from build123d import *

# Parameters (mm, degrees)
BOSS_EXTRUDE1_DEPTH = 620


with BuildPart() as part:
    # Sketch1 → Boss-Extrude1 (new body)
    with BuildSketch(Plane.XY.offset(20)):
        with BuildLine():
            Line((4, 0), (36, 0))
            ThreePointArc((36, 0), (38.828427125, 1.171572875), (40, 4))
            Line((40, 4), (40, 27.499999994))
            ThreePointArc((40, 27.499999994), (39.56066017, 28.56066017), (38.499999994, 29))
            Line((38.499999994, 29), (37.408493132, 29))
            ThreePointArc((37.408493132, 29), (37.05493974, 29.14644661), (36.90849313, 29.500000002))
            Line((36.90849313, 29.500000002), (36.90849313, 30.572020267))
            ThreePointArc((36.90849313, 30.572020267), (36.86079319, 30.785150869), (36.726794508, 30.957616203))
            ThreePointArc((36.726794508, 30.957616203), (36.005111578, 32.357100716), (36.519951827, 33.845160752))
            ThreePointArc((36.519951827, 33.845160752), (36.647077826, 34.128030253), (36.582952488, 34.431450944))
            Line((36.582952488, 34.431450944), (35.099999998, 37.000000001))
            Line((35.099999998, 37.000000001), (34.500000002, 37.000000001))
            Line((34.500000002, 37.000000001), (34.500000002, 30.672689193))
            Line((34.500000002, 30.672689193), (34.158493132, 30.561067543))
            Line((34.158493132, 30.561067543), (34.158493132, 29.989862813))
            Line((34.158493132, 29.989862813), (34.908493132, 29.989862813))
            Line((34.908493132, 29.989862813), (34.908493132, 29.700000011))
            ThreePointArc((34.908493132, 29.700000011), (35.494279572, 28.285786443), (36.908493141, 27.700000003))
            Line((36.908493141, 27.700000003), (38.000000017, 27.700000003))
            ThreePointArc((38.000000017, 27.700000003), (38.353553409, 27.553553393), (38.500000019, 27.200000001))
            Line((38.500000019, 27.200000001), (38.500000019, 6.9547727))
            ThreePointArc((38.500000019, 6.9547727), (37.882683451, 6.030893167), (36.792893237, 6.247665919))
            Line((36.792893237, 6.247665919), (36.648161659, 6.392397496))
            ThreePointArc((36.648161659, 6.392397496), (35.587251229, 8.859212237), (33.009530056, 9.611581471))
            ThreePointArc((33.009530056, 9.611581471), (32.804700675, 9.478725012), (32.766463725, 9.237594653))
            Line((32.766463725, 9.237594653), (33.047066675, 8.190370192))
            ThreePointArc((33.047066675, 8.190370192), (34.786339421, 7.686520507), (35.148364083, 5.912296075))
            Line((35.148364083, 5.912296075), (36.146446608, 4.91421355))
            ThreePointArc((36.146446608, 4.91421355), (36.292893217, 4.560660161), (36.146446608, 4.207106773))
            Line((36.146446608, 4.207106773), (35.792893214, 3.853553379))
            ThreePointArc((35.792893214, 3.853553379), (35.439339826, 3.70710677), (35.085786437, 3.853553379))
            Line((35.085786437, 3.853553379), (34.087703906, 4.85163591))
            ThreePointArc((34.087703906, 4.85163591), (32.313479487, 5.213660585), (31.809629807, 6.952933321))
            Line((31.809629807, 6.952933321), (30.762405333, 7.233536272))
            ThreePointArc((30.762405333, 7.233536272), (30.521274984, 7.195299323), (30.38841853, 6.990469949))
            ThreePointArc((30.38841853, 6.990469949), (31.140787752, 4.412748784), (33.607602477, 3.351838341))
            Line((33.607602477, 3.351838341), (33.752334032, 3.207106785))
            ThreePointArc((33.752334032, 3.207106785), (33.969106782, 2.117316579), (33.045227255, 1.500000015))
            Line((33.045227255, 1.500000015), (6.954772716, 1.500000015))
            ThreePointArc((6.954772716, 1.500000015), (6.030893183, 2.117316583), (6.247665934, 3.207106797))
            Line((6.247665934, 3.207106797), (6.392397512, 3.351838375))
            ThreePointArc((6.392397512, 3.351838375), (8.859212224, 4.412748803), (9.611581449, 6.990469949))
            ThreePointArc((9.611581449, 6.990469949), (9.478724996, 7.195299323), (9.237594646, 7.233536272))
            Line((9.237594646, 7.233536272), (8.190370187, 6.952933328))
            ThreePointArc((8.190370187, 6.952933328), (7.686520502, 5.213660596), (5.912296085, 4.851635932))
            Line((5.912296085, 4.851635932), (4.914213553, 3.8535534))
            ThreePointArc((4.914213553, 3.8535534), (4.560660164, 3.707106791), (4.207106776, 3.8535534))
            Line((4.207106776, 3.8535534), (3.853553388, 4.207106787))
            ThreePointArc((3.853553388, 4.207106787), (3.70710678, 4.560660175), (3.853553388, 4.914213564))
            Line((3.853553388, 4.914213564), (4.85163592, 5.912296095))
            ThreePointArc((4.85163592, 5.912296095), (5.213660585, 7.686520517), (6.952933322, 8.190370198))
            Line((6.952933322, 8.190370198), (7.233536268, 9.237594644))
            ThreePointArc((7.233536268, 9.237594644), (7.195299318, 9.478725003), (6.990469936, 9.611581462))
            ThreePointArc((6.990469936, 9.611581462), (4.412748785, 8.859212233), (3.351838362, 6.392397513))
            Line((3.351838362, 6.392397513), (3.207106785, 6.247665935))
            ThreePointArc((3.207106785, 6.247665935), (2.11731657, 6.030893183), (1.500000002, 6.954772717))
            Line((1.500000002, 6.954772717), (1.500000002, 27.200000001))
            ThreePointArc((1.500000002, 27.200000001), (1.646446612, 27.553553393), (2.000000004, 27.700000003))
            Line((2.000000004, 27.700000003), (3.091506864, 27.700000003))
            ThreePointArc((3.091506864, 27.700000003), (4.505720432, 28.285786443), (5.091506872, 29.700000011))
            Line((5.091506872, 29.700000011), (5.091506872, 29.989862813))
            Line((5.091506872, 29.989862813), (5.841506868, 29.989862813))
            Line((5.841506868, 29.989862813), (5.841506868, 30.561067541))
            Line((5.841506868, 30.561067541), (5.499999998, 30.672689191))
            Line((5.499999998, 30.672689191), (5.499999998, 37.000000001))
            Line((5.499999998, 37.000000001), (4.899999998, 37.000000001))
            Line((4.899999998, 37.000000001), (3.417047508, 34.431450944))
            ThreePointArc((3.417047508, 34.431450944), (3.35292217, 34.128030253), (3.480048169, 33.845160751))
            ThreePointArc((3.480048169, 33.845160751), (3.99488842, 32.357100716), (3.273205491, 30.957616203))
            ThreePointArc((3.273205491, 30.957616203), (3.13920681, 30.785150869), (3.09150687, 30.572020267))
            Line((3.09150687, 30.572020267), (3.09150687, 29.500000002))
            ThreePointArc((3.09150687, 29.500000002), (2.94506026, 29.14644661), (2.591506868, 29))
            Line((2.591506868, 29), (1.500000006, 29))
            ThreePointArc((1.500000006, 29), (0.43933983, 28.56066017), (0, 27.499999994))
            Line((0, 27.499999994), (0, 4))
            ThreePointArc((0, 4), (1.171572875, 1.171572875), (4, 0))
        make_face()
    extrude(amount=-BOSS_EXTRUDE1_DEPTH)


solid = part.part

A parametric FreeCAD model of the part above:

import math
import FreeCAD as App
import Part
import Sketcher

V = App.Vector
Q = App.Units.Quantity

doc = App.newDocument("Part")
params = doc.addObject("Spreadsheet::Sheet", "Params")
for row, (alias, value) in enumerate([
    ("sketch1_radius", "4 mm"),
    ("sketch1_radius2", "2 mm"),
    ("sketch1_radius3", "1 mm"),
    ("sketch1_radius4", "1.5 mm"),
    ("sketch1_radius5", "0.5 mm"),
    ("pad1_length", "620 mm"),
], start=1):
    params.set(f"A{row}", alias)
    params.set(f"B{row}", "=" + value)
    params.setAlias(f"B{row}", alias)

body = doc.addObject("PartDesign::Body", "Body")

sketch1 = body.newObject("Sketcher::SketchObject", "Sketch")
sketch1.AttachmentSupport = (doc.getObject("XY_Plane"), [""])
sketch1.MapMode = "FlatFace"
sketch1.AttachmentOffset = App.Placement(V(0, 0, 20), App.Rotation())
sketch1.addGeometry(Part.LineSegment(V(4, 0, 0), V(36, 0, 0)), False)
sketch1.addGeometry(Part.ArcOfCircle(Part.Circle(V(36, 4, 0), V(0, 0, 1), 4), math.radians(-90), math.radians(0)), False)
sketch1.addGeometry(Part.LineSegment(V(40, 4, 0), V(40, 27.5, 0)), False)
sketch1.addGeometry(Part.ArcOfCircle(Part.Circle(V(38.5, 27.5, 0), V(0, 0, 1), 1.5), math.radians(0), math.radians(90)), False)
sketch1.addGeometry(Part.LineSegment(V(38.5, 29, 0), V(37.408493, 29, 0)), False)
sketch1.addGeometry(Part.ArcOfCircle(Part.Circle(V(37.408493, 29.5, 0), V(0, 0, 1), 0.5), math.radians(180), math.radians(270)), False)
sketch1.addGeometry(Part.LineSegment(V(36.908493, 29.5, 0), V(36.908493, 30.57202, 0)), False)
sketch1.addGeometry(Part.ArcOfCircle(Part.Circle(V(36.408493, 30.57202, 0), V(0, 0, 1), 0.5), math.radians(0), math.radians(50.461041)), False)
sketch1.addGeometry(Part.ArcOfCircle(Part.Circle(V(38, 32.5, 0), V(0, 0, 1), 2), math.radians(137.733467), math.radians(230.461041)), False)
sketch1.addGeometry(Part.ArcOfCircle(Part.Circle(V(36.14994, 34.181451, 0), V(0, 0, 1), 0.5), math.radians(-42.266533), math.radians(30)), False)
sketch1.addGeometry(Part.LineSegment(V(36.582952, 34.431451, 0), V(35.1, 37, 0)), False)
sketch1.addGeometry(Part.LineSegment(V(35.1, 37, 0), V(34.5, 37, 0)), False)
sketch1.addGeometry(Part.LineSegment(V(34.5, 37, 0), V(34.5, 30.672689, 0)), False)
sketch1.addGeometry(Part.LineSegment(V(34.5, 30.672689, 0), V(34.158493, 30.561068, 0)), False)
sketch1.addGeometry(Part.LineSegment(V(34.158493, 30.561068, 0), V(34.158493, 29.989863, 0)), False)
sketch1.addGeometry(Part.LineSegment(V(34.158493, 29.989863, 0), V(34.908493, 29.989863, 0)), False)
sketch1.addGeometry(Part.LineSegment(V(34.908493, 29.989863, 0), V(34.908493, 29.7, 0)), False)
sketch1.addGeometry(Part.ArcOfCircle(Part.Circle(V(36.908493, 29.7, 0), V(0, 0, 1), 2), math.radians(180), math.radians(270)), False)
sketch1.addGeometry(Part.LineSegment(V(36.908493, 27.7, 0), V(38, 27.7, 0)), False)
sketch1.addGeometry(Part.ArcOfCircle(Part.Circle(V(38, 27.2, 0), V(0, 0, 1), 0.5), math.radians(0), math.radians(90)), False)
sketch1.addGeometry(Part.LineSegment(V(38.5, 27.2, 0), V(38.5, 6.954773, 0)), False)
sketch1.addGeometry(Part.ArcOfCircle(Part.Circle(V(37.5, 6.954773, 0), V(0, 0, 1), 1), math.radians(-135), math.radians(0)), False)
sketch1.addGeometry(Part.LineSegment(V(36.792893, 6.247666, 0), V(36.648162, 6.392397, 0)), False)
sketch1.addGeometry(Part.ArcOfCircle(Part.Circle(V(33.5, 6.5, 0), V(0, 0, 1), 3.15), math.radians(-1.957577), math.radians(98.957671)), False)
sketch1.addGeometry(Part.ArcOfCircle(Part.Circle(V(33.056241, 9.31524, 0), V(0, 0, 1), 0.3), math.radians(98.957671), math.radians(195)), False)
sketch1.addGeometry(Part.LineSegment(V(32.766464, 9.237595, 0), V(33.047067, 8.19037, 0)), False)
sketch1.addGeometry(Part.ArcOfCircle(Part.Circle(V(33.5, 6.5, 0), V(0, 0, 1), 1.75), math.radians(-19.623067), math.radians(105)), False)
sketch1.addGeometry(Part.LineSegment(V(35.148364, 5.912296, 0), V(36.146447, 4.914214, 0)), False)
sketch1.addGeometry(Part.ArcOfCircle(Part.Circle(V(35.792893, 4.56066, 0), V(0, 0, 1), 0.5), math.radians(-45), math.radians(45)), False)
sketch1.addGeometry(Part.LineSegment(V(36.146447, 4.207107, 0), V(35.792893, 3.853553, 0)), False)
sketch1.addGeometry(Part.ArcOfCircle(Part.Circle(V(35.43934, 4.207107, 0), V(0, 0, 1), 0.5), math.radians(-135), math.radians(-45)), False)
sketch1.addGeometry(Part.LineSegment(V(35.085786, 3.853553, 0), V(34.087704, 4.851636, 0)), False)
sketch1.addGeometry(Part.ArcOfCircle(Part.Circle(V(33.5, 6.5, 0), V(0, 0, 1), 1.75), math.radians(165), math.radians(289.623066)), False)
sketch1.addGeometry(Part.LineSegment(V(31.80963, 6.952933, 0), V(30.762405, 7.233536, 0)), False)
sketch1.addGeometry(Part.ArcOfCircle(Part.Circle(V(30.68476, 6.943759, 0), V(0, 0, 1), 0.3), math.radians(75), math.radians(171.042329)), False)
sketch1.addGeometry(Part.ArcOfCircle(Part.Circle(V(33.5, 6.5, 0), V(0, 0, 1), 3.15), math.radians(171.042328), math.radians(271.957577)), False)
sketch1.addGeometry(Part.LineSegment(V(33.607602, 3.351838, 0), V(33.752334, 3.207107, 0)), False)
sketch1.addGeometry(Part.ArcOfCircle(Part.Circle(V(33.045227, 2.5, 0), V(0, 0, 1), 1), math.radians(-90), math.radians(45)), False)
sketch1.addGeometry(Part.LineSegment(V(33.045227, 1.5, 0), V(6.954773, 1.5, 0)), False)
sketch1.addGeometry(Part.ArcOfCircle(Part.Circle(V(6.954773, 2.5, 0), V(0, 0, 1), 1), math.radians(135), math.radians(270)), False)
sketch1.addGeometry(Part.LineSegment(V(6.247666, 3.207107, 0), V(6.392398, 3.351838, 0)), False)
sketch1.addGeometry(Part.ArcOfCircle(Part.Circle(V(6.5, 6.5, 0), V(0, 0, 1), 3.15), math.radians(-91.957577), math.radians(8.957671)), False)
sketch1.addGeometry(Part.ArcOfCircle(Part.Circle(V(9.31524, 6.943759, 0), V(0, 0, 1), 0.3), math.radians(8.957671), math.radians(105)), False)
sketch1.addGeometry(Part.LineSegment(V(9.237595, 7.233536, 0), V(8.19037, 6.952933, 0)), False)
sketch1.addGeometry(Part.ArcOfCircle(Part.Circle(V(6.5, 6.5, 0), V(0, 0, 1), 1.75), math.radians(-109.623067), math.radians(15)), False)
sketch1.addGeometry(Part.LineSegment(V(5.912296, 4.851636, 0), V(4.914214, 3.853553, 0)), False)
sketch1.addGeometry(Part.ArcOfCircle(Part.Circle(V(4.56066, 4.207107, 0), V(0, 0, 1), 0.5), math.radians(-135), math.radians(-45)), False)
sketch1.addGeometry(Part.LineSegment(V(4.207107, 3.853553, 0), V(3.853553, 4.207107, 0)), False)
sketch1.addGeometry(Part.ArcOfCircle(Part.Circle(V(4.207107, 4.56066, 0), V(0, 0, 1), 0.5), math.radians(135), math.radians(225)), False)
sketch1.addGeometry(Part.LineSegment(V(3.853553, 4.914214, 0), V(4.851636, 5.912296, 0)), False)
sketch1.addGeometry(Part.ArcOfCircle(Part.Circle(V(6.5, 6.5, 0), V(0, 0, 1), 1.75), math.radians(75), math.radians(199.623067)), False)
sketch1.addGeometry(Part.LineSegment(V(6.952933, 8.19037, 0), V(7.233536, 9.237595, 0)), False)
sketch1.addGeometry(Part.ArcOfCircle(Part.Circle(V(6.943759, 9.31524, 0), V(0, 0, 1), 0.3), math.radians(-15), math.radians(81.042329)), False)
sketch1.addGeometry(Part.ArcOfCircle(Part.Circle(V(6.5, 6.5, 0), V(0, 0, 1), 3.15), math.radians(81.042329), math.radians(181.957577)), False)
sketch1.addGeometry(Part.LineSegment(V(3.351838, 6.392398, 0), V(3.207107, 6.247666, 0)), False)
sketch1.addGeometry(Part.ArcOfCircle(Part.Circle(V(2.5, 6.954773, 0), V(0, 0, 1), 1), math.radians(180), math.radians(315)), False)
sketch1.addGeometry(Part.LineSegment(V(1.5, 6.954773, 0), V(1.5, 27.2, 0)), False)
sketch1.addGeometry(Part.ArcOfCircle(Part.Circle(V(2, 27.2, 0), V(0, 0, 1), 0.5), math.radians(90), math.radians(180)), False)
sketch1.addGeometry(Part.LineSegment(V(2, 27.7, 0), V(3.091507, 27.7, 0)), False)
sketch1.addGeometry(Part.ArcOfCircle(Part.Circle(V(3.091507, 29.7, 0), V(0, 0, 1), 2), math.radians(-90), math.radians(0)), False)
sketch1.addGeometry(Part.LineSegment(V(5.091507, 29.7, 0), V(5.091507, 29.989863, 0)), False)
sketch1.addGeometry(Part.LineSegment(V(5.091507, 29.989863, 0), V(5.841507, 29.989863, 0)), False)
sketch1.addGeometry(Part.LineSegment(V(5.841507, 29.989863, 0), V(5.841507, 30.561068, 0)), False)
sketch1.addGeometry(Part.LineSegment(V(5.841507, 30.561068, 0), V(5.5, 30.672689, 0)), False)
sketch1.addGeometry(Part.LineSegment(V(5.5, 30.672689, 0), V(5.5, 37, 0)), False)
sketch1.addGeometry(Part.LineSegment(V(5.5, 37, 0), V(4.9, 37, 0)), False)
sketch1.addGeometry(Part.LineSegment(V(4.9, 37, 0), V(3.417048, 34.431451, 0)), False)
sketch1.addGeometry(Part.ArcOfCircle(Part.Circle(V(3.85006, 34.181451, 0), V(0, 0, 1), 0.5), math.radians(150), math.radians(222.266533)), False)
sketch1.addGeometry(Part.ArcOfCircle(Part.Circle(V(2, 32.5, 0), V(0, 0, 1), 2), math.radians(-50.461041), math.radians(42.266533)), False)
sketch1.addGeometry(Part.ArcOfCircle(Part.Circle(V(3.591507, 30.57202, 0), V(0, 0, 1), 0.5), math.radians(129.538959), math.radians(180)), False)
sketch1.addGeometry(Part.LineSegment(V(3.091507, 30.57202, 0), V(3.091507, 29.5, 0)), False)
sketch1.addGeometry(Part.ArcOfCircle(Part.Circle(V(2.591507, 29.5, 0), V(0, 0, 1), 0.5), math.radians(-90), math.radians(0)), False)
sketch1.addGeometry(Part.LineSegment(V(2.591507, 29, 0), V(1.5, 29, 0)), False)
sketch1.addGeometry(Part.ArcOfCircle(Part.Circle(V(1.5, 27.5, 0), V(0, 0, 1), 1.5), math.radians(90), math.radians(180)), False)
sketch1.addGeometry(Part.LineSegment(V(0, 27.5, 0), V(0, 4, 0)), False)
sketch1.addGeometry(Part.ArcOfCircle(Part.Circle(V(4, 4, 0), V(0, 0, 1), 4), math.radians(180), math.radians(270)), False)
sketch1.addConstraint(Sketcher.Constraint("Tangent", 0, 2, 1, 1))
sketch1.addConstraint(Sketcher.Constraint("Tangent", 1, 2, 2, 1))
sketch1.addConstraint(Sketcher.Constraint("Tangent", 2, 2, 3, 1))
sketch1.addConstraint(Sketcher.Constraint("Tangent", 3, 2, 4, 1))
sketch1.addConstraint(Sketcher.Constraint("Tangent", 4, 2, 5, 2))
sketch1.addConstraint(Sketcher.Constraint("Tangent", 5, 1, 6, 1))
sketch1.addConstraint(Sketcher.Constraint("Tangent", 6, 2, 7, 1))
sketch1.addConstraint(Sketcher.Constraint("Tangent", 7, 2, 8, 2))
sketch1.addConstraint(Sketcher.Constraint("Tangent", 8, 1, 9, 1))
sketch1.addConstraint(Sketcher.Constraint("Tangent", 9, 2, 10, 1))
sketch1.addConstraint(Sketcher.Constraint("Coincident", 10, 2, 11, 1))
sketch1.addConstraint(Sketcher.Constraint("Coincident", 11, 2, 12, 1))
sketch1.addConstraint(Sketcher.Constraint("Coincident", 12, 2, 13, 1))
sketch1.addConstraint(Sketcher.Constraint("Coincident", 13, 2, 14, 1))
sketch1.addConstraint(Sketcher.Constraint("Coincident", 14, 2, 15, 1))
sketch1.addConstraint(Sketcher.Constraint("Coincident", 15, 2, 16, 1))
sketch1.addConstraint(Sketcher.Constraint("Tangent", 16, 2, 17, 1))
sketch1.addConstraint(Sketcher.Constraint("Tangent", 17, 2, 18, 1))
sketch1.addConstraint(Sketcher.Constraint("Tangent", 18, 2, 19, 2))
sketch1.addConstraint(Sketcher.Constraint("Tangent", 19, 1, 20, 1))
sketch1.addConstraint(Sketcher.Constraint("Tangent", 20, 2, 21, 2))
sketch1.addConstraint(Sketcher.Constraint("Tangent", 21, 1, 22, 1))
sketch1.addConstraint(Sketcher.Constraint("Coincident", 22, 2, 23, 1))
sketch1.addConstraint(Sketcher.Constraint("Tangent", 23, 2, 24, 1))
sketch1.addConstraint(Sketcher.Constraint("Tangent", 24, 2, 25, 1))
sketch1.addConstraint(Sketcher.Constraint("Coincident", 25, 2, 26, 2))
sketch1.addConstraint(Sketcher.Constraint("Coincident", 26, 1, 27, 1))
sketch1.addConstraint(Sketcher.Constraint("Tangent", 27, 2, 28, 2))
sketch1.addConstraint(Sketcher.Constraint("Tangent", 28, 1, 29, 1))
sketch1.addConstraint(Sketcher.Constraint("Tangent", 29, 2, 30, 2))
sketch1.addConstraint(Sketcher.Constraint("Tangent", 30, 1, 31, 1))
sketch1.addConstraint(Sketcher.Constraint("Coincident", 31, 2, 32, 2))
sketch1.addConstraint(Sketcher.Constraint("Coincident", 32, 1, 33, 1))
sketch1.addConstraint(Sketcher.Constraint("Tangent", 33, 2, 34, 1))
sketch1.addConstraint(Sketcher.Constraint("Tangent", 34, 2, 35, 1))
sketch1.addConstraint(Sketcher.Constraint("Coincident", 35, 2, 36, 1))
sketch1.addConstraint(Sketcher.Constraint("Tangent", 36, 2, 37, 2))
sketch1.addConstraint(Sketcher.Constraint("Tangent", 37, 1, 38, 1))
sketch1.addConstraint(Sketcher.Constraint("Tangent", 38, 2, 39, 2))
sketch1.addConstraint(Sketcher.Constraint("Tangent", 39, 1, 40, 1))
sketch1.addConstraint(Sketcher.Constraint("Coincident", 40, 2, 41, 1))
sketch1.addConstraint(Sketcher.Constraint("Tangent", 41, 2, 42, 1))
sketch1.addConstraint(Sketcher.Constraint("Tangent", 42, 2, 43, 1))
sketch1.addConstraint(Sketcher.Constraint("Coincident", 43, 2, 44, 2))
sketch1.addConstraint(Sketcher.Constraint("Coincident", 44, 1, 45, 1))
sketch1.addConstraint(Sketcher.Constraint("Tangent", 45, 2, 46, 2))
sketch1.addConstraint(Sketcher.Constraint("Tangent", 46, 1, 47, 1))
sketch1.addConstraint(Sketcher.Constraint("Tangent", 47, 2, 48, 2))
sketch1.addConstraint(Sketcher.Constraint("Tangent", 48, 1, 49, 1))
sketch1.addConstraint(Sketcher.Constraint("Coincident", 49, 2, 50, 2))
sketch1.addConstraint(Sketcher.Constraint("Coincident", 50, 1, 51, 1))
sketch1.addConstraint(Sketcher.Constraint("Tangent", 51, 2, 52, 1))
sketch1.addConstraint(Sketcher.Constraint("Tangent", 52, 2, 53, 1))
sketch1.addConstraint(Sketcher.Constraint("Coincident", 53, 2, 54, 1))
sketch1.addConstraint(Sketcher.Constraint("Tangent", 54, 2, 55, 2))
sketch1.addConstraint(Sketcher.Constraint("Tangent", 55, 1, 56, 1))
sketch1.addConstraint(Sketcher.Constraint("Tangent", 56, 2, 57, 2))
sketch1.addConstraint(Sketcher.Constraint("Tangent", 57, 1, 58, 1))
sketch1.addConstraint(Sketcher.Constraint("Tangent", 58, 2, 59, 1))
sketch1.addConstraint(Sketcher.Constraint("Tangent", 59, 2, 60, 1))
sketch1.addConstraint(Sketcher.Constraint("Coincident", 60, 2, 61, 1))
sketch1.addConstraint(Sketcher.Constraint("Coincident", 61, 2, 62, 1))
sketch1.addConstraint(Sketcher.Constraint("Coincident", 62, 2, 63, 1))
sketch1.addConstraint(Sketcher.Constraint("Coincident", 63, 2, 64, 1))
sketch1.addConstraint(Sketcher.Constraint("Coincident", 64, 2, 65, 1))
sketch1.addConstraint(Sketcher.Constraint("Coincident", 65, 2, 66, 1))
sketch1.addConstraint(Sketcher.Constraint("Tangent", 66, 2, 67, 1))
sketch1.addConstraint(Sketcher.Constraint("Tangent", 67, 2, 68, 2))
sketch1.addConstraint(Sketcher.Constraint("Tangent", 68, 1, 69, 1))
sketch1.addConstraint(Sketcher.Constraint("Tangent", 69, 2, 70, 1))
sketch1.addConstraint(Sketcher.Constraint("Tangent", 70, 2, 71, 2))
sketch1.addConstraint(Sketcher.Constraint("Tangent", 71, 1, 72, 1))
sketch1.addConstraint(Sketcher.Constraint("Tangent", 72, 2, 73, 1))
sketch1.addConstraint(Sketcher.Constraint("Tangent", 73, 2, 74, 1))
sketch1.addConstraint(Sketcher.Constraint("Tangent", 74, 2, 75, 1))
sketch1.addConstraint(Sketcher.Constraint("Tangent", 75, 2, 0, 1))
sketch1.addConstraint(Sketcher.Constraint("Horizontal", 0))
sketch1.addConstraint(Sketcher.Constraint("Vertical", 2))
sketch1.addConstraint(Sketcher.Constraint("Horizontal", 4))
sketch1.addConstraint(Sketcher.Constraint("Vertical", 6))
sketch1.addConstraint(Sketcher.Constraint("Horizontal", 11))
sketch1.addConstraint(Sketcher.Constraint("Vertical", 12))
sketch1.addConstraint(Sketcher.Constraint("Vertical", 14))
sketch1.addConstraint(Sketcher.Constraint("Horizontal", 15))
sketch1.addConstraint(Sketcher.Constraint("Vertical", 16))
sketch1.addConstraint(Sketcher.Constraint("Horizontal", 18))
sketch1.addConstraint(Sketcher.Constraint("Vertical", 20))
sketch1.addConstraint(Sketcher.Constraint("Horizontal", 38))
sketch1.addConstraint(Sketcher.Constraint("Vertical", 56))
sketch1.addConstraint(Sketcher.Constraint("Horizontal", 58))
sketch1.addConstraint(Sketcher.Constraint("Vertical", 60))
sketch1.addConstraint(Sketcher.Constraint("Horizontal", 61))
sketch1.addConstraint(Sketcher.Constraint("Vertical", 62))
sketch1.addConstraint(Sketcher.Constraint("Vertical", 64))
sketch1.addConstraint(Sketcher.Constraint("Horizontal", 65))
sketch1.addConstraint(Sketcher.Constraint("Vertical", 70))
sketch1.addConstraint(Sketcher.Constraint("Horizontal", 72))
sketch1.addConstraint(Sketcher.Constraint("Vertical", 74))
sketch1.addConstraint(Sketcher.Constraint("Coincident", 26, 3, 23, 3))
sketch1.addConstraint(Sketcher.Constraint("Coincident", 32, 3, 23, 3))
sketch1.addConstraint(Sketcher.Constraint("Coincident", 35, 3, 23, 3))
sketch1.addConstraint(Sketcher.Constraint("Coincident", 44, 3, 41, 3))
sketch1.addConstraint(Sketcher.Constraint("Coincident", 50, 3, 41, 3))
sketch1.addConstraint(Sketcher.Constraint("Coincident", 53, 3, 41, 3))
sketch1.addConstraint(Sketcher.Constraint("Equal", 5, 7))
sketch1.addConstraint(Sketcher.Constraint("Equal", 7, 9))
sketch1.addConstraint(Sketcher.Constraint("Equal", 8, 17))
sketch1.addConstraint(Sketcher.Constraint("Equal", 9, 19))
sketch1.addConstraint(Sketcher.Constraint("Equal", 19, 28))
sketch1.addConstraint(Sketcher.Constraint("Equal", 28, 30))
sketch1.addConstraint(Sketcher.Constraint("Equal", 26, 32))
sketch1.addConstraint(Sketcher.Constraint("Equal", 24, 34))
sketch1.addConstraint(Sketcher.Constraint("Equal", 23, 35))
sketch1.addConstraint(Sketcher.Constraint("Equal", 21, 37))
sketch1.addConstraint(Sketcher.Constraint("Equal", 37, 39))
sketch1.addConstraint(Sketcher.Constraint("Equal", 35, 41))
sketch1.addConstraint(Sketcher.Constraint("Equal", 34, 42))
sketch1.addConstraint(Sketcher.Constraint("Equal", 32, 44))
sketch1.addConstraint(Sketcher.Constraint("Equal", 30, 46))
sketch1.addConstraint(Sketcher.Constraint("Equal", 46, 48))
sketch1.addConstraint(Sketcher.Constraint("Equal", 44, 50))
sketch1.addConstraint(Sketcher.Constraint("Equal", 42, 52))
sketch1.addConstraint(Sketcher.Constraint("Equal", 41, 53))
sketch1.addConstraint(Sketcher.Constraint("Equal", 39, 55))
sketch1.addConstraint(Sketcher.Constraint("Equal", 48, 57))
sketch1.addConstraint(Sketcher.Constraint("Equal", 17, 59))
sketch1.addConstraint(Sketcher.Constraint("Equal", 57, 67))
sketch1.addConstraint(Sketcher.Constraint("Equal", 59, 68))
sketch1.addConstraint(Sketcher.Constraint("Equal", 67, 69))
sketch1.addConstraint(Sketcher.Constraint("Equal", 69, 71))
sketch1.addConstraint(Sketcher.Constraint("Equal", 3, 73))
sketch1.addConstraint(Sketcher.Constraint("Equal", 1, 75))
sketch1.addConstraint(Sketcher.Constraint("PointOnObject", 0, 2, -1))
sketch1.addConstraint(Sketcher.Constraint("PointOnObject", 73, 2, -2))
sketch1.addConstraint(Sketcher.Constraint("Parallel", 22, 27))
sketch1.addConstraint(Sketcher.Constraint("Perpendicular", 27, 29))
sketch1.addConstraint(Sketcher.Constraint("Perpendicular", 29, 31))
sketch1.addConstraint(Sketcher.Constraint("Parallel", 31, 36))
sketch1.addConstraint(Sketcher.Constraint("Perpendicular", 36, 40))
sketch1.addConstraint(Sketcher.Constraint("Perpendicular", 25, 43))
sketch1.addConstraint(Sketcher.Constraint("Parallel", 40, 45))
sketch1.addConstraint(Sketcher.Constraint("Perpendicular", 45, 47))
sketch1.addConstraint(Sketcher.Constraint("Perpendicular", 47, 49))
sketch1.addConstraint(Sketcher.Constraint("Perpendicular", 33, 51))
sketch1.addConstraint(Sketcher.Constraint("Parallel", 49, 54))
sketch1.addConstraint(Sketcher.Constraint("Horizontal", 35, 3, 41, 3))
sketch1.addConstraint(Sketcher.Constraint("Horizontal", 34, 3, 42, 3))
sketch1.addConstraint(Sketcher.Constraint("Horizontal", 30, 3, 46, 3))
sketch1.addConstraint(Sketcher.Constraint("Horizontal", 28, 3, 48, 3))
sketch1.addConstraint(Sketcher.Constraint("Horizontal", 24, 3, 52, 3))
sketch1.addConstraint(Sketcher.Constraint("Horizontal", 21, 3, 55, 3))
sketch1.addConstraint(Sketcher.Constraint("Horizontal", 19, 3, 57, 3))
sketch1.addConstraint(Sketcher.Constraint("Horizontal", 9, 3, 67, 3))
sketch1.addConstraint(Sketcher.Constraint("Horizontal", 8, 3, 68, 3))
sketch1.addConstraint(Sketcher.Constraint("Horizontal", 7, 3, 69, 3))
sketch1.addConstraint(Sketcher.Constraint("Horizontal", 5, 3, 71, 3))
sketch1.addConstraint(Sketcher.Constraint("Horizontal", 46, 3, 28, 1))
sketch1.addConstraint(Sketcher.Constraint("Horizontal", 29, 2, 30, 1))
sketch1.addConstraint(Sketcher.Constraint("Horizontal", 35, 2, 40, 2))
sketch1.addConstraint(Sketcher.Constraint("Horizontal", 33, 2, 42, 2))
sketch1.addConstraint(Sketcher.Constraint("Horizontal", 31, 2, 44, 1))
sketch1.addConstraint(Sketcher.Constraint("Horizontal", 22, 2, 53, 2))
sketch1.addConstraint(Sketcher.Constraint("Horizontal", 15, 2, 60, 2))
sketch1.addConstraint(Sketcher.Constraint("Horizontal", 13, 2, 62, 2))
sketch1.addConstraint(Sketcher.Constraint("Horizontal", 12, 2, 63, 2))
sketch1.addConstraint(Sketcher.Constraint("Horizontal", 11, 2, 64, 2))
sketch1.addConstraint(Sketcher.Constraint("Horizontal", 9, 2, 66, 2))
sketch1.addConstraint(Sketcher.Constraint("Vertical", 8, 3, 19, 3))
sketch1.addConstraint(Sketcher.Constraint("Vertical", 57, 3, 68, 3))
sketch1.addConstraint(Sketcher.Constraint("Vertical", 17, 3, 5, 1))
sketch1.addConstraint(Sketcher.Constraint("Vertical", 3, 2, 19, 1))
sketch1.addConstraint(Sketcher.Constraint("Vertical", 73, 3, 55, 1))
sketch1.addConstraint(Sketcher.Constraint("Vertical", 58, 2, 69, 2))
sketch1.addConstraint(Sketcher.Constraint("Equal", 15, 61))
sketch1.addConstraint(Sketcher.Constraint("Equal", 11, 65))
sketch1.addConstraint(Sketcher.Constraint("Equal", 27, 31))
sketch1.addConstraint(Sketcher.Constraint("Equal", 25, 33))
sketch1.addConstraint(Sketcher.Constraint("Equal", 22, 36))
sketch1.addConstraint(Sketcher.Constraint("Radius", 1, 4.0))
sketch1.addConstraint(Sketcher.Constraint("Radius", 8, 2.0))
sketch1.addConstraint(Sketcher.Constraint("Radius", 21, 1.0))
sketch1.addConstraint(Sketcher.Constraint("Radius", 3, 1.5))
sketch1.addConstraint(Sketcher.Constraint("Radius", 5, 0.5))
sketch1.addConstraint(Sketcher.Constraint("Radius", 24, 0.3))
sketch1.addConstraint(Sketcher.Constraint("DistanceX", 0, 1, 0, 2, 32.0))
sketch1.addConstraint(Sketcher.Constraint("Angle", 10, Q("120 deg")))
sketch1.addConstraint(Sketcher.Constraint("Angle", 25, Q("-75 deg")))
sketch1.addConstraint(Sketcher.Constraint("Radius", 23, 3.15))
sketch1.addConstraint(Sketcher.Constraint("Radius", 26, 1.75))
sketch1.addConstraint(Sketcher.Constraint("DistanceX", 11, 2, 11, 1, 0.6))
sketch1.addConstraint(Sketcher.Constraint("DistanceY", 2, 1, 2, 2, 23.5))
sketch1.addConstraint(Sketcher.Constraint("DistanceY", -1, 1, 10, 2, 37.0))
sketch1.addConstraint(Sketcher.Constraint("Angle", 13, Q("-161.9 deg")))
sketch1.addConstraint(Sketcher.Constraint("DistanceX", 15, 1, 15, 2, 0.75))
sketch1.addConstraint(Sketcher.Constraint("DistanceY", -1, 1, 8, 3, 32.5))
sketch1.addConstraint(Sketcher.Constraint("DistanceY", -1, 1, 17, 3, 29.7))
sketch1.addConstraint(Sketcher.Constraint("DistanceX", -1, 1, 23, 3, 33.5))
sketch1.addConstraint(Sketcher.Constraint("DistanceY", -1, 1, 23, 3, 6.5))
sketch1.addConstraint(Sketcher.Constraint("DistanceY", -1, 1, 37, 3, 2.5))
sketch1.addConstraint(Sketcher.Constraint("DistanceX", -1, 1, 10, 2, 35.1))
sketch1.addConstraint(Sketcher.Constraint("Distance", 27, 1.411502))
sketch1.addConstraint(Sketcher.Constraint("DistanceY", 6, 1, 6, 2, 1.07202))
sketch1.addConstraint(Sketcher.Constraint("DistanceY", 12, 2, 12, 1, 6.327311))
sketch1.addConstraint(Sketcher.Constraint("Distance", 22, 0.204681))
sketch1.addConstraint(Sketcher.Constraint("DistanceY", 14, 2, 14, 1, 0.571205))
sketch1.addConstraint(Sketcher.Constraint("DistanceX", -1, 1, 24, 3, 33.056241))
sketch1.setExpression("Constraints[178]", "Params.sketch1_radius")
sketch1.setExpression("Constraints[179]", "Params.sketch1_radius2")
sketch1.setExpression("Constraints[180]", "Params.sketch1_radius3")
sketch1.setExpression("Constraints[181]", "Params.sketch1_radius4")
sketch1.setExpression("Constraints[182]", "Params.sketch1_radius5")
pad1 = body.newObject("PartDesign::Pad", "Pad")
pad1.Profile = sketch1
pad1.setExpression("Length", "Params.pad1_length")
pad1.Reversed = True

doc.recompute()
